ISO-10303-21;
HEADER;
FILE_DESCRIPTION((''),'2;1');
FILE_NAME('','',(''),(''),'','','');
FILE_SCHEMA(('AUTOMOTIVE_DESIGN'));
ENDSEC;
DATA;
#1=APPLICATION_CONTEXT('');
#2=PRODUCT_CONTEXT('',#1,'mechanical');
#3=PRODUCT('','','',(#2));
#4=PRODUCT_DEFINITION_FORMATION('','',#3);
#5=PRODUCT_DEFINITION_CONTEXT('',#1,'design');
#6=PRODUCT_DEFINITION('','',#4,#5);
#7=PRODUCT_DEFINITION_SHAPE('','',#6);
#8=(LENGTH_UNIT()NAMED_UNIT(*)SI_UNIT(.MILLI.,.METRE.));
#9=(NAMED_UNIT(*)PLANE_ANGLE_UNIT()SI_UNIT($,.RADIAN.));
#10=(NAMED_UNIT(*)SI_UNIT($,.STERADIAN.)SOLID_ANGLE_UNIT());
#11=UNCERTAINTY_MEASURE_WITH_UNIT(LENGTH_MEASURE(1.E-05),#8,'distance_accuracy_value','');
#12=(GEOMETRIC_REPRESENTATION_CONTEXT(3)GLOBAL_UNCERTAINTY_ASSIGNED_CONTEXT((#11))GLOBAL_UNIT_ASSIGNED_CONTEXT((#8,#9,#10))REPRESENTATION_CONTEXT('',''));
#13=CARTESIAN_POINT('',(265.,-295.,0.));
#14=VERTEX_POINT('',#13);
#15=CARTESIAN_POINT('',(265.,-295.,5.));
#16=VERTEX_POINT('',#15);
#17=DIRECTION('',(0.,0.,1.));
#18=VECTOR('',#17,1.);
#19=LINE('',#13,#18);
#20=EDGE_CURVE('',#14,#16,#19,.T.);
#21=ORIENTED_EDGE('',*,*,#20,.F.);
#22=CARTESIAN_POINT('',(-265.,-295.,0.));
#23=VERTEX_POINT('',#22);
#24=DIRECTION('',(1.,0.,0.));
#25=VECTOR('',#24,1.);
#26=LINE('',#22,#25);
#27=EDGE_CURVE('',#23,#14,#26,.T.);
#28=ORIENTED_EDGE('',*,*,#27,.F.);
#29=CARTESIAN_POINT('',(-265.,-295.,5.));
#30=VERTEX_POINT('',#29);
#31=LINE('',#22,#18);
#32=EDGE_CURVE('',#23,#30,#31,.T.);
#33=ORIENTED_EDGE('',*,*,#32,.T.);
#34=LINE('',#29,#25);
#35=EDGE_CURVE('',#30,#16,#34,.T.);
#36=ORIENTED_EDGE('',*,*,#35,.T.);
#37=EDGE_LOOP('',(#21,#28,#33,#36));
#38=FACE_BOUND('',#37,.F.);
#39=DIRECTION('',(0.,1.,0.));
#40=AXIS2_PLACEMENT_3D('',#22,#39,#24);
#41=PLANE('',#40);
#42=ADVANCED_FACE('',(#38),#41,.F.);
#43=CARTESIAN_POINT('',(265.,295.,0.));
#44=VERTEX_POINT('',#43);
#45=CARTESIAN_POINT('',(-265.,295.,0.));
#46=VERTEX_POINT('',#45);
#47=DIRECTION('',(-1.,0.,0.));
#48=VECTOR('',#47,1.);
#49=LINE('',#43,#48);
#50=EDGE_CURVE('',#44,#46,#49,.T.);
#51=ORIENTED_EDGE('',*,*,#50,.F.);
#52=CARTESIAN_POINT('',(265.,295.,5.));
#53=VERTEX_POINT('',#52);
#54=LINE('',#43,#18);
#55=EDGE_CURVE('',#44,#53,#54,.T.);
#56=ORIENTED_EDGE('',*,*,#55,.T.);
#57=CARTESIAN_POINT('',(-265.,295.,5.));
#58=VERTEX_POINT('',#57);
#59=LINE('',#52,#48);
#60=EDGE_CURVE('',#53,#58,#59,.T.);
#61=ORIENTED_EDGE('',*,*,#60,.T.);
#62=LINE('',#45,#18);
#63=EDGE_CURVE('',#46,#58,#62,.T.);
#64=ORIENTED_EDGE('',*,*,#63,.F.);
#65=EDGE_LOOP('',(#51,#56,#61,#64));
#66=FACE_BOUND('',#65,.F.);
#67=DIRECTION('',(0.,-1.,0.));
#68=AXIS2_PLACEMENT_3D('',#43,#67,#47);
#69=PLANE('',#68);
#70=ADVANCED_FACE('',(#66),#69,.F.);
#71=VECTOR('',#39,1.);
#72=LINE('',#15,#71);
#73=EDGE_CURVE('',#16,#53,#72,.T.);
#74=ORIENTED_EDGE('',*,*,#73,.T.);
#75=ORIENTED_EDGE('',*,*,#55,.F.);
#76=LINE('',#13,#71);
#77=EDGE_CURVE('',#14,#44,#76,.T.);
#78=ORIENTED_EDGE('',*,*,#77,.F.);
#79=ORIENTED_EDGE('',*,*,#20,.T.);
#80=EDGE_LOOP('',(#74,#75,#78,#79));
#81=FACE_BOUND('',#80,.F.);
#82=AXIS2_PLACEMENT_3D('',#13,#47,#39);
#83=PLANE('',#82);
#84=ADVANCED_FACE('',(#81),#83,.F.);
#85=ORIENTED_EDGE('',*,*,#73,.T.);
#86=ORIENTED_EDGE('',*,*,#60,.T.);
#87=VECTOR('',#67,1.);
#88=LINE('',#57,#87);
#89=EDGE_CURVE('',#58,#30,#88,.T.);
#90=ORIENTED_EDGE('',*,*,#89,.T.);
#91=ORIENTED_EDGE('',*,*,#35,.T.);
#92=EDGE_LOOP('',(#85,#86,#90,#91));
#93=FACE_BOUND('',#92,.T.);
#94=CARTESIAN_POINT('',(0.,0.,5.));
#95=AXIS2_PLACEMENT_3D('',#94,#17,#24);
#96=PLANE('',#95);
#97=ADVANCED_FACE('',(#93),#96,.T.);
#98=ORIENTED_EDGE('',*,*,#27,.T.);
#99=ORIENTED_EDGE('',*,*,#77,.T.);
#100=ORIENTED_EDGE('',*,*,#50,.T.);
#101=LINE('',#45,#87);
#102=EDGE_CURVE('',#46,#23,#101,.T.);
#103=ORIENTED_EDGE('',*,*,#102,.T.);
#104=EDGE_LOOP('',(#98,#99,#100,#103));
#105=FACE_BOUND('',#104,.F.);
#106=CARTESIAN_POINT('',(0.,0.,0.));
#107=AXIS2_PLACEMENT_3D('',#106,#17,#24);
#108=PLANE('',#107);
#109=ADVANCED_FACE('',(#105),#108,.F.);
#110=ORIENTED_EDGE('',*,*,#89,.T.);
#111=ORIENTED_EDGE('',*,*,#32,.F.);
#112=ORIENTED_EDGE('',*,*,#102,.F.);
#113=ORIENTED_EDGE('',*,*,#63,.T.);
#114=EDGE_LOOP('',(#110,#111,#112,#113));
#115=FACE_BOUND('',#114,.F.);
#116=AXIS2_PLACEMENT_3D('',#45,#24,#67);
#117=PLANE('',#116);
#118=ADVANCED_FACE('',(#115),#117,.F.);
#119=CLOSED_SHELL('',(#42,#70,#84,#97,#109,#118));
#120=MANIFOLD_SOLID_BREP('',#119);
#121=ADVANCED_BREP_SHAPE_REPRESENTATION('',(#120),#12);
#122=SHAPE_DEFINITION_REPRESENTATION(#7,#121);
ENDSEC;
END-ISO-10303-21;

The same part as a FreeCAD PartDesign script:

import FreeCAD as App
import Part
import Sketcher
Q = App.Units.Quantity


def add_polygon(sketch, points):
    """Adds a closed chain of lines whose ends are joined by coincident constraints."""
    first, n = sketch.GeometryCount, len(points)
    for a, b in zip(points, points[1:] + points[:1]):
        sketch.addGeometry(Part.LineSegment(App.Vector(*a, 0), App.Vector(*b, 0)), False)
    for i in range(n):
        sketch.addConstraint(Sketcher.Constraint("Coincident", first + i, 2, first + (i + 1) % n, 1))

doc = App.newDocument("Part")
body = doc.addObject("PartDesign::Body", "Body")

sketch1 = body.newObject("Sketcher::SketchObject", "Sketch")
sketch1.AttachmentSupport = (doc.getObject("XY_Plane"), [""])
sketch1.MapMode = "FlatFace"
add_polygon(sketch1, [(-265, 295), (-265, -295), (265, -295), (265, 295)])
sketch1.addConstraint(Sketcher.Constraint("Vertical", 0))
sketch1.addConstraint(Sketcher.Constraint("Horizontal", 1))
sketch1.addConstraint(Sketcher.Constraint("Vertical", 2))
sketch1.addConstraint(Sketcher.Constraint("Horizontal", 3))
sketch1.addConstraint(Sketcher.Constraint("Symmetric", 0, 2, 2, 2, -1, 1))
sketch1.addConstraint(Sketcher.Constraint("DistanceX", 1, 1, 1, 2, Q("530 mm")))
sketch1.addConstraint(Sketcher.Constraint("DistanceY", 0, 2, 0, 1, Q("590 mm")))
pad1 = body.newObject("PartDesign::Pad", "Pad")
pad1.Profile = sketch1
pad1.Length = 5

doc.recompute()
